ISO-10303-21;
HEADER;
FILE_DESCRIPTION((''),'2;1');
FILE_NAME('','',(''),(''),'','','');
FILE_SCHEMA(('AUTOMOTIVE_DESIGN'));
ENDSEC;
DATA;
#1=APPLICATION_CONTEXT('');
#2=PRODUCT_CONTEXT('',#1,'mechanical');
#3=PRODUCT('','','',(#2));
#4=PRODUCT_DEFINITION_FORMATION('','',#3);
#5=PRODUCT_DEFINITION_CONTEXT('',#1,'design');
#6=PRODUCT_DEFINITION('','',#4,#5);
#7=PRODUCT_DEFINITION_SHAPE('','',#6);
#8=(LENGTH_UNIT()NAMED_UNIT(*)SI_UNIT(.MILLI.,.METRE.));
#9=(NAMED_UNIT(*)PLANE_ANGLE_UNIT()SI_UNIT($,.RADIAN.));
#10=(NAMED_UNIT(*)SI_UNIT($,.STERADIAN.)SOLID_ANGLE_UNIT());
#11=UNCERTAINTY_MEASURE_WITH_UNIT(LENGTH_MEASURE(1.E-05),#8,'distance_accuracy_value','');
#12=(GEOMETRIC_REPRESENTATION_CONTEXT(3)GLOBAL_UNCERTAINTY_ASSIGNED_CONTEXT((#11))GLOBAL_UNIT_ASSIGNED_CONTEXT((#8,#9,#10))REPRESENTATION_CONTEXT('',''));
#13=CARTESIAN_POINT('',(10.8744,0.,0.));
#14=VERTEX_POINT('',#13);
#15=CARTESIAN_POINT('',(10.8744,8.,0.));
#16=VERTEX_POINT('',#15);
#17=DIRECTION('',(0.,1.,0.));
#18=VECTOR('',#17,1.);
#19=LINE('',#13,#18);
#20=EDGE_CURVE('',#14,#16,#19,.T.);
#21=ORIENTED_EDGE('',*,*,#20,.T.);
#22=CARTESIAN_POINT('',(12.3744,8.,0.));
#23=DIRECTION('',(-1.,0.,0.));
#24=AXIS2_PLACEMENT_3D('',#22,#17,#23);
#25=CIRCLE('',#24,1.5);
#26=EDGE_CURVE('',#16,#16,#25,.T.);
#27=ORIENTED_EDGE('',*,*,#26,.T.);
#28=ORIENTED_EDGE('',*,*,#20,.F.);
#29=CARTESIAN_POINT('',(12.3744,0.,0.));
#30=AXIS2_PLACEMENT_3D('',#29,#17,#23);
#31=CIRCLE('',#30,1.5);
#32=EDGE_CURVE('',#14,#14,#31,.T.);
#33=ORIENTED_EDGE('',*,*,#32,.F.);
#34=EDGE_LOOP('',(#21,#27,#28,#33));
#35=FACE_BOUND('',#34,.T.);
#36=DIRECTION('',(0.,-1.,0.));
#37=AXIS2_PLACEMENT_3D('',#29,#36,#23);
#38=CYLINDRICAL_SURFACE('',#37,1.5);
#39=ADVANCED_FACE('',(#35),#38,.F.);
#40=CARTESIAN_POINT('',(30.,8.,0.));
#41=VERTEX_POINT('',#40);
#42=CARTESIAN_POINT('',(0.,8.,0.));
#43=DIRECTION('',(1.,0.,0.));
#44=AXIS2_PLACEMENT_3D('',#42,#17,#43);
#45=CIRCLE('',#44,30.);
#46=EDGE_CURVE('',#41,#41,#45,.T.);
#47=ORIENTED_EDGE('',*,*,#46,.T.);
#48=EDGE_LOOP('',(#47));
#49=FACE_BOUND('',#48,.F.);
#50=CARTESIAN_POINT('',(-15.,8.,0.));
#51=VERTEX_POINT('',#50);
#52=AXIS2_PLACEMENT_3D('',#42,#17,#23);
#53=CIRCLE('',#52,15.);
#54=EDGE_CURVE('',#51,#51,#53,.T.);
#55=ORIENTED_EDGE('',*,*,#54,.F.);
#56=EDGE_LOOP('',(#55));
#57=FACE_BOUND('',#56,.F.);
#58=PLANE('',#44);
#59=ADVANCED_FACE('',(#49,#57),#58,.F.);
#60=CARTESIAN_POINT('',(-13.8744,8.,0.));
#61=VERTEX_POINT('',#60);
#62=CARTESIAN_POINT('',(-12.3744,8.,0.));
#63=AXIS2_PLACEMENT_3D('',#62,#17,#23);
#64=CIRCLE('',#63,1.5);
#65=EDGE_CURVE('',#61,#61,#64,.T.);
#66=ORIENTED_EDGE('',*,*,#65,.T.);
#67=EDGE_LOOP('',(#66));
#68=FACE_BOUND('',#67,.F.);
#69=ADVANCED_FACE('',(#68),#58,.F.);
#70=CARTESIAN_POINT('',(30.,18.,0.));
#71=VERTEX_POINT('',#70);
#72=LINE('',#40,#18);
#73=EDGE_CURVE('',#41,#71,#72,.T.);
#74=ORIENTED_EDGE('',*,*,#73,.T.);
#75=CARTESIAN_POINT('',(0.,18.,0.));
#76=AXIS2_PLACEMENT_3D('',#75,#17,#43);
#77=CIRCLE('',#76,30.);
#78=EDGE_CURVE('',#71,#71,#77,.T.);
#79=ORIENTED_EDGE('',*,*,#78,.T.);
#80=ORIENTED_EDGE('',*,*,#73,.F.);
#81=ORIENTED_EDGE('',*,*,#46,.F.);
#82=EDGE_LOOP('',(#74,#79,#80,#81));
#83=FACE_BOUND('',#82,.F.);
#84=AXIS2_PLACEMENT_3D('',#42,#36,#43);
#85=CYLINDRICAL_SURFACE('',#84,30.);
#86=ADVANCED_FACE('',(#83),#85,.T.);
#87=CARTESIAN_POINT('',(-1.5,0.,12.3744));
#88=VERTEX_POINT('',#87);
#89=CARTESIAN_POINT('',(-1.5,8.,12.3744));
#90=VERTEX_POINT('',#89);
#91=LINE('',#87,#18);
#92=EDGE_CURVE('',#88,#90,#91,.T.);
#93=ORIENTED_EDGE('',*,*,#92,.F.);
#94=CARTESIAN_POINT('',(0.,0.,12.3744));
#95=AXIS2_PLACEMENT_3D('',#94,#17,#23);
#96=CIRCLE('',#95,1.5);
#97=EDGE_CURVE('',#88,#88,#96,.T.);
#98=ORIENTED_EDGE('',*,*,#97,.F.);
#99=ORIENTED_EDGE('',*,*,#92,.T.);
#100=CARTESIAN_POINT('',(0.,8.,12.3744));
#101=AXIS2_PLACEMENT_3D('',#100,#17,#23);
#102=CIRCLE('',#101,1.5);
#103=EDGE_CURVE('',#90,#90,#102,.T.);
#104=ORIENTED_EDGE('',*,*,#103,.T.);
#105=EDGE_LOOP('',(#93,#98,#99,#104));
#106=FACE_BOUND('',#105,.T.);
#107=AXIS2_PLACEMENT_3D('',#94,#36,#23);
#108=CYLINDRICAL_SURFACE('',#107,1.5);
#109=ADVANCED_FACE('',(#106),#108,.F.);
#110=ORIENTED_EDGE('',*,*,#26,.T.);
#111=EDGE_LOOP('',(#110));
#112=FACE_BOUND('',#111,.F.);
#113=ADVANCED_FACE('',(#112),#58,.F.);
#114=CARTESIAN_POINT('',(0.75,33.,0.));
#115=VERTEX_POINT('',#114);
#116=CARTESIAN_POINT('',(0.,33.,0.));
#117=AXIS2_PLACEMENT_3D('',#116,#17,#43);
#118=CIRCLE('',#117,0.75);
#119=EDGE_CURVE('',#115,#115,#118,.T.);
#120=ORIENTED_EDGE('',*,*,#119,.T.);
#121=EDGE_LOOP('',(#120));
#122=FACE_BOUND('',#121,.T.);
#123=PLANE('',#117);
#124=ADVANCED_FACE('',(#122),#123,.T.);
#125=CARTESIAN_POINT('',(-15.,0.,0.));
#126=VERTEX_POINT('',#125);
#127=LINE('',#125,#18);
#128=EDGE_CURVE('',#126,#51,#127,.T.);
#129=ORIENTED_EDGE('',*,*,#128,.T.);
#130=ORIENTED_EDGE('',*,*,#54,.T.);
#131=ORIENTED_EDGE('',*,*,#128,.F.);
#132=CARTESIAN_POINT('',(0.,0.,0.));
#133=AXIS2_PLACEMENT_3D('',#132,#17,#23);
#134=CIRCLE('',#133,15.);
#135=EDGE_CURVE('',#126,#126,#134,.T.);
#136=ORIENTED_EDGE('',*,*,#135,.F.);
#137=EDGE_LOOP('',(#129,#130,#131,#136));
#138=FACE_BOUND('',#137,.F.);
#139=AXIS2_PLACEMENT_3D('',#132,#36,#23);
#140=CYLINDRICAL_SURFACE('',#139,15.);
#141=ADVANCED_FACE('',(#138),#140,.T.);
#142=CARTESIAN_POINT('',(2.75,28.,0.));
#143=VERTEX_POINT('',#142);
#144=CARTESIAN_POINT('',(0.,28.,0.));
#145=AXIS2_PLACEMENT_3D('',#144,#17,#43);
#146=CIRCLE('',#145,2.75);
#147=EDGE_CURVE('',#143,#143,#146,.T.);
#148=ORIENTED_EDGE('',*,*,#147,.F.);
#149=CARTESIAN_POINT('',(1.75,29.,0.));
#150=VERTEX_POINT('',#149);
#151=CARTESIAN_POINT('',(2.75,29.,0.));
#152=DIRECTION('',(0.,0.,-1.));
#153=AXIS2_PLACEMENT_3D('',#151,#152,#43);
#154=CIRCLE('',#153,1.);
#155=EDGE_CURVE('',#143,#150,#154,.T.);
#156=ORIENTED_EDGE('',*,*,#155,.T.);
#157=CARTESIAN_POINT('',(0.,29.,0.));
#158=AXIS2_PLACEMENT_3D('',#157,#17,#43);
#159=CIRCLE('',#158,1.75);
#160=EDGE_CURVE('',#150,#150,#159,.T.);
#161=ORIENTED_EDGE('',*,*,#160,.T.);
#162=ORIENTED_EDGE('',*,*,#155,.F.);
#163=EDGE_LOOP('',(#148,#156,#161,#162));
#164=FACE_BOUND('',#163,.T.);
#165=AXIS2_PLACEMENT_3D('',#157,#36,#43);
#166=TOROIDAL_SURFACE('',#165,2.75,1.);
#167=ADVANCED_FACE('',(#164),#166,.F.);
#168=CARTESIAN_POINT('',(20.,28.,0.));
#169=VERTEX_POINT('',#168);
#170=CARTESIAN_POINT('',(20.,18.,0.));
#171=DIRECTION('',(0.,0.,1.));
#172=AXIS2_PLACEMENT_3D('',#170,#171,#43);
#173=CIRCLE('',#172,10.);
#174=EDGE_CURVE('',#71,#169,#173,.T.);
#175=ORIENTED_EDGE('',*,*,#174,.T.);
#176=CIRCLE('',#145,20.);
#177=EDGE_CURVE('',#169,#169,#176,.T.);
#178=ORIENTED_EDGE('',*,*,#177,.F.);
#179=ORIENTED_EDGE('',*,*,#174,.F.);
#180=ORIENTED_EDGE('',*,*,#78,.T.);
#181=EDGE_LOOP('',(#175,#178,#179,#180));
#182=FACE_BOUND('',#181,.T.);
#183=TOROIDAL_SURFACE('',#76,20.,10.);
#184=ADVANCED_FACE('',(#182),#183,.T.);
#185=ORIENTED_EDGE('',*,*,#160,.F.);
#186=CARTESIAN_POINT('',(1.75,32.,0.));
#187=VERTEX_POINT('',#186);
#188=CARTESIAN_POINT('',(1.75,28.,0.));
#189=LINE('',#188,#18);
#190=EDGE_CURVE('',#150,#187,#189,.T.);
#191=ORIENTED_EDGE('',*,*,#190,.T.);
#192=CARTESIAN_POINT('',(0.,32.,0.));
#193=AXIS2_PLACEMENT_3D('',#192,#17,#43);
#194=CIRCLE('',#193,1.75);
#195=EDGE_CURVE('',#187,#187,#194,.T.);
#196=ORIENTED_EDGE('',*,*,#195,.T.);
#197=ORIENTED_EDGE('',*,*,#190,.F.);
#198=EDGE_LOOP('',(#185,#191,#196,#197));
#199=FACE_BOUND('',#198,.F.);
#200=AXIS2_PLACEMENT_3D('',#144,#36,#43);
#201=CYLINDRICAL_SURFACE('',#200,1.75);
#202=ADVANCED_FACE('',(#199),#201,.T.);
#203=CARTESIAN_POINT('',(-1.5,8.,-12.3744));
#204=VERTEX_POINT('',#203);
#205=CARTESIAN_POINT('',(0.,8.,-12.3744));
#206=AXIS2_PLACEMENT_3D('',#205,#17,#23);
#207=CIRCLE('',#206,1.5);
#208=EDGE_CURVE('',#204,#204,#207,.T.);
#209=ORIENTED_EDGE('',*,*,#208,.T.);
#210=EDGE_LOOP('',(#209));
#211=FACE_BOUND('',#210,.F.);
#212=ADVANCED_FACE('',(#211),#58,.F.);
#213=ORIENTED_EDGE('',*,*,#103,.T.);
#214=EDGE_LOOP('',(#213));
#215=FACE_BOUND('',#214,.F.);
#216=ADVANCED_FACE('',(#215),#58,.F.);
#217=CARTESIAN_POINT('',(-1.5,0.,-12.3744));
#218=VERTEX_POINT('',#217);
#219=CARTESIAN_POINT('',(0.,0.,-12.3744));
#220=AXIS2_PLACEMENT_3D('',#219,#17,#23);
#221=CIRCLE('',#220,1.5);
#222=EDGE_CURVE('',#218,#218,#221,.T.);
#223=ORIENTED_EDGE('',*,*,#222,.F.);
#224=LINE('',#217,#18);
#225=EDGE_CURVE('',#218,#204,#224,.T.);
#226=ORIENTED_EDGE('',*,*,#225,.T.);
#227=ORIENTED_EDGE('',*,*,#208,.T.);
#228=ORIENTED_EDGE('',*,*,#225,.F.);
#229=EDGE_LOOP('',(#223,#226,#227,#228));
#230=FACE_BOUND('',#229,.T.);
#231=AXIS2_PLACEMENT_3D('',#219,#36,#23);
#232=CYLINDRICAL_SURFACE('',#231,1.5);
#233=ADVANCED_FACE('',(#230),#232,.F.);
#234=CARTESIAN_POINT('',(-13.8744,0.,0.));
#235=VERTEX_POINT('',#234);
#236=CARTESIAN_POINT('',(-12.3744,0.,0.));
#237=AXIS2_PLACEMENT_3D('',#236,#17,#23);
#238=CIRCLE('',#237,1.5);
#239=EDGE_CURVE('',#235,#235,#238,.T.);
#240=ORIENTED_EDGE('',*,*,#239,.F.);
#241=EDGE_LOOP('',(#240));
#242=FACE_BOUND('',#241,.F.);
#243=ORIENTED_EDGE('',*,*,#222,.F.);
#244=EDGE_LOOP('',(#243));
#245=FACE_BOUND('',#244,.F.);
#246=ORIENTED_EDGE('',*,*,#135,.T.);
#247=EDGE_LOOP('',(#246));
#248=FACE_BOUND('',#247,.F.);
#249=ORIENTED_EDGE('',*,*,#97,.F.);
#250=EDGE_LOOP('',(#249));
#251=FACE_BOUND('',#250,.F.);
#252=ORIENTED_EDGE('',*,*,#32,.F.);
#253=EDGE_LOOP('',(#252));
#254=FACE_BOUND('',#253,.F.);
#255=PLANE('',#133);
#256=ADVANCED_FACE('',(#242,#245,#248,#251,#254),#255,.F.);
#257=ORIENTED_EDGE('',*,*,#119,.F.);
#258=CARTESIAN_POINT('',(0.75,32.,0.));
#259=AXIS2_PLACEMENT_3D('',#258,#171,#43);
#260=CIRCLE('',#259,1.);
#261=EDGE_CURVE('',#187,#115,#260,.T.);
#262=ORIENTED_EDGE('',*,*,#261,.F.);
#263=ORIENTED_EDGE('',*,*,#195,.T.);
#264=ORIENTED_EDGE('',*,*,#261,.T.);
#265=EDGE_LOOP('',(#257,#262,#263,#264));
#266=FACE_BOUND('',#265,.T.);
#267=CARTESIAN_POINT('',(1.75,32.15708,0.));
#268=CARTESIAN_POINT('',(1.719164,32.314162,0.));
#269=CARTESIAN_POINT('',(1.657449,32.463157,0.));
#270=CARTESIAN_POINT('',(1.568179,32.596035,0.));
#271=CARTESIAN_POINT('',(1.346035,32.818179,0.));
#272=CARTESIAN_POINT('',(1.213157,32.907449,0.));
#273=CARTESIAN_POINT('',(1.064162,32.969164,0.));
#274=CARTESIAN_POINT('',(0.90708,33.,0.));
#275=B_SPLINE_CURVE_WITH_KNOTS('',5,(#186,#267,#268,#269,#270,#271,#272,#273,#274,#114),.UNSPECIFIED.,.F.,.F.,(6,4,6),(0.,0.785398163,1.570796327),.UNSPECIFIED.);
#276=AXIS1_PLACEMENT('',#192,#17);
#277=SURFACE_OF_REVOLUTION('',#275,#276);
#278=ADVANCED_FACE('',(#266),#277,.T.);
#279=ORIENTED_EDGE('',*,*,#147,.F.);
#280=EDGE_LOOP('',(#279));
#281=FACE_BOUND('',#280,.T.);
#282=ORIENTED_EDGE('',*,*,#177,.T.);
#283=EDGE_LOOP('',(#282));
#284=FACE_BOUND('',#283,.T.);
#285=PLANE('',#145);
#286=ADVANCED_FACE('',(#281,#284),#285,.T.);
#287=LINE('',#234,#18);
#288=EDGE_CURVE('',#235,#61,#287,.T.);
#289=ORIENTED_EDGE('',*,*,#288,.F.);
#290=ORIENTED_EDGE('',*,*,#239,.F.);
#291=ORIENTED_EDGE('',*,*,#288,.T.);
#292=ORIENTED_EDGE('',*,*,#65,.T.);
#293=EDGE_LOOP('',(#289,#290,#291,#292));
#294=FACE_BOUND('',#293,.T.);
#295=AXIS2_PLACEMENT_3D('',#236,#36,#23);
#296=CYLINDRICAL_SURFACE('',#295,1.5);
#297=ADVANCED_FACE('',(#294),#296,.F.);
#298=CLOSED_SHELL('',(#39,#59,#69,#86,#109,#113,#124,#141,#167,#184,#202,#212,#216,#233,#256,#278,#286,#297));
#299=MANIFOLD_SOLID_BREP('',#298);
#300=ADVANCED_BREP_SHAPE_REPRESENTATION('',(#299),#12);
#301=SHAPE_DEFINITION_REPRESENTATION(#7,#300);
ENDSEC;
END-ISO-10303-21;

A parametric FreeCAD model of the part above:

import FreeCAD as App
import Part
import Sketcher
from FreeCAD import Vector
Q = App.Units.Quantity


def edges_at(feature, points):
    """Names of the edges that pass closest to the given points."""
    edges = feature.Shape.Edges
    near = lambda p: min(range(len(edges)), key=lambda i: edges[i].distToShape(Part.Vertex(*p))[0])
    return sorted({f"Edge{near(p) + 1}" for p in points})

doc = App.newDocument("Part")
body = doc.addObject("PartDesign::Body", "Body")

# Sketch on XZ plane
sketch1 = body.newObject("Sketcher::SketchObject", "Sketch")
sketch1.AttachmentSupport = (doc.getObject("XZ_Plane"), [""])
sketch1.MapMode = "FlatFace"
sketch1.addGeometry([
    Part.Circle(Vector(0, 0, 0), Vector(0, 0, 1), 15),  # 0
    Part.Circle(Vector(0, -12.4, 0), Vector(0, 0, 1), 1.5),  # 1
    Part.Circle(Vector(12.4, 0, 0), Vector(0, 0, 1), 1.5),  # 2
    Part.Circle(Vector(-12.4, 0, 0), Vector(0, 0, 1), 1.5),  # 3
    Part.Circle(Vector(0, 12.4, 0), Vector(0, 0, 1), 1.5),  # 4
], False)
sketch1.addConstraint([
    Sketcher.Constraint("Coincident", 0, 3, -1, 1),
    Sketcher.Constraint("Equal", 1, 2),
    Sketcher.Constraint("Equal", 2, 3),
    Sketcher.Constraint("Equal", 3, 4),
    Sketcher.Constraint("Symmetric", 2, 3, 3, 3, -1, 1),
    Sketcher.Constraint("Symmetric", 1, 3, 4, 3, -1, 1),
    Sketcher.Constraint("PointOnObject", 1, 3, -2),
    Sketcher.Constraint("PointOnObject", 2, 3, -1),
    Sketcher.Constraint("Diameter", 0, Q("30 mm")),
    Sketcher.Constraint("Diameter", 1, Q("3 mm")),
    Sketcher.Constraint("DistanceY", 1, 3, -1, 1, Q("12.3744 mm")),
    Sketcher.Constraint("DistanceX", -1, 1, 2, 3, Q("12.3744 mm")),
])
pad1 = body.newObject("PartDesign::Pad", "Pad")
pad1.Profile = sketch1
pad1.Length = 8
pad1.Reversed = True

# Sketch on XZ plane
sketch2 = body.newObject("Sketcher::SketchObject", "Sketch001")
sketch2.AttachmentSupport = (doc.getObject("XZ_Plane"), [""])
sketch2.MapMode = "FlatFace"
sketch2.AttachmentOffset = App.Placement(Vector(0, 0, -8), App.Rotation())
sketch2.addGeometry(Part.Circle(Vector(0, 0, 0), Vector(0, 0, 1), 30), False)
sketch2.addConstraint([
    Sketcher.Constraint("Coincident", 0, 3, -1, 1),
    Sketcher.Constraint("Diameter", 0, Q("60 mm")),
])
pad2 = body.newObject("PartDesign::Pad", "Pad001")
pad2.Profile = sketch2
pad2.Length = 20
pad2.Reversed = True
doc.recompute()

fillet = body.newObject("PartDesign::Fillet", "Fillet")
fillet.Base = (pad2, edges_at(pad2, [(-30, 28, 0)]))
fillet.Radius = 10

# Sketch on XZ plane
sketch3 = body.newObject("Sketcher::SketchObject", "Sketch002")
sketch3.AttachmentSupport = (doc.getObject("XZ_Plane"), [""])
sketch3.MapMode = "FlatFace"
sketch3.AttachmentOffset = App.Placement(Vector(0, 0, -28), App.Rotation())
sketch3.addGeometry(Part.Circle(Vector(0, 0, 0), Vector(0, 0, 1), 1.8), False)
sketch3.addConstraint([
    Sketcher.Constraint("Coincident", 0, 3, -1, 1),
    Sketcher.Constraint("Diameter", 0, Q("3.5 mm")),
])
pad3 = body.newObject("PartDesign::Pad", "Pad002")
pad3.Profile = sketch3
pad3.Length = 5
pad3.Reversed = True
doc.recompute()

fillet2 = body.newObject("PartDesign::Fillet", "Fillet001")
fillet2.Base = (pad3, edges_at(pad3, [(-1.75, 28, 0), (-1.75, 33, 0)]))
fillet2.Radius = 1

doc.recompute()
